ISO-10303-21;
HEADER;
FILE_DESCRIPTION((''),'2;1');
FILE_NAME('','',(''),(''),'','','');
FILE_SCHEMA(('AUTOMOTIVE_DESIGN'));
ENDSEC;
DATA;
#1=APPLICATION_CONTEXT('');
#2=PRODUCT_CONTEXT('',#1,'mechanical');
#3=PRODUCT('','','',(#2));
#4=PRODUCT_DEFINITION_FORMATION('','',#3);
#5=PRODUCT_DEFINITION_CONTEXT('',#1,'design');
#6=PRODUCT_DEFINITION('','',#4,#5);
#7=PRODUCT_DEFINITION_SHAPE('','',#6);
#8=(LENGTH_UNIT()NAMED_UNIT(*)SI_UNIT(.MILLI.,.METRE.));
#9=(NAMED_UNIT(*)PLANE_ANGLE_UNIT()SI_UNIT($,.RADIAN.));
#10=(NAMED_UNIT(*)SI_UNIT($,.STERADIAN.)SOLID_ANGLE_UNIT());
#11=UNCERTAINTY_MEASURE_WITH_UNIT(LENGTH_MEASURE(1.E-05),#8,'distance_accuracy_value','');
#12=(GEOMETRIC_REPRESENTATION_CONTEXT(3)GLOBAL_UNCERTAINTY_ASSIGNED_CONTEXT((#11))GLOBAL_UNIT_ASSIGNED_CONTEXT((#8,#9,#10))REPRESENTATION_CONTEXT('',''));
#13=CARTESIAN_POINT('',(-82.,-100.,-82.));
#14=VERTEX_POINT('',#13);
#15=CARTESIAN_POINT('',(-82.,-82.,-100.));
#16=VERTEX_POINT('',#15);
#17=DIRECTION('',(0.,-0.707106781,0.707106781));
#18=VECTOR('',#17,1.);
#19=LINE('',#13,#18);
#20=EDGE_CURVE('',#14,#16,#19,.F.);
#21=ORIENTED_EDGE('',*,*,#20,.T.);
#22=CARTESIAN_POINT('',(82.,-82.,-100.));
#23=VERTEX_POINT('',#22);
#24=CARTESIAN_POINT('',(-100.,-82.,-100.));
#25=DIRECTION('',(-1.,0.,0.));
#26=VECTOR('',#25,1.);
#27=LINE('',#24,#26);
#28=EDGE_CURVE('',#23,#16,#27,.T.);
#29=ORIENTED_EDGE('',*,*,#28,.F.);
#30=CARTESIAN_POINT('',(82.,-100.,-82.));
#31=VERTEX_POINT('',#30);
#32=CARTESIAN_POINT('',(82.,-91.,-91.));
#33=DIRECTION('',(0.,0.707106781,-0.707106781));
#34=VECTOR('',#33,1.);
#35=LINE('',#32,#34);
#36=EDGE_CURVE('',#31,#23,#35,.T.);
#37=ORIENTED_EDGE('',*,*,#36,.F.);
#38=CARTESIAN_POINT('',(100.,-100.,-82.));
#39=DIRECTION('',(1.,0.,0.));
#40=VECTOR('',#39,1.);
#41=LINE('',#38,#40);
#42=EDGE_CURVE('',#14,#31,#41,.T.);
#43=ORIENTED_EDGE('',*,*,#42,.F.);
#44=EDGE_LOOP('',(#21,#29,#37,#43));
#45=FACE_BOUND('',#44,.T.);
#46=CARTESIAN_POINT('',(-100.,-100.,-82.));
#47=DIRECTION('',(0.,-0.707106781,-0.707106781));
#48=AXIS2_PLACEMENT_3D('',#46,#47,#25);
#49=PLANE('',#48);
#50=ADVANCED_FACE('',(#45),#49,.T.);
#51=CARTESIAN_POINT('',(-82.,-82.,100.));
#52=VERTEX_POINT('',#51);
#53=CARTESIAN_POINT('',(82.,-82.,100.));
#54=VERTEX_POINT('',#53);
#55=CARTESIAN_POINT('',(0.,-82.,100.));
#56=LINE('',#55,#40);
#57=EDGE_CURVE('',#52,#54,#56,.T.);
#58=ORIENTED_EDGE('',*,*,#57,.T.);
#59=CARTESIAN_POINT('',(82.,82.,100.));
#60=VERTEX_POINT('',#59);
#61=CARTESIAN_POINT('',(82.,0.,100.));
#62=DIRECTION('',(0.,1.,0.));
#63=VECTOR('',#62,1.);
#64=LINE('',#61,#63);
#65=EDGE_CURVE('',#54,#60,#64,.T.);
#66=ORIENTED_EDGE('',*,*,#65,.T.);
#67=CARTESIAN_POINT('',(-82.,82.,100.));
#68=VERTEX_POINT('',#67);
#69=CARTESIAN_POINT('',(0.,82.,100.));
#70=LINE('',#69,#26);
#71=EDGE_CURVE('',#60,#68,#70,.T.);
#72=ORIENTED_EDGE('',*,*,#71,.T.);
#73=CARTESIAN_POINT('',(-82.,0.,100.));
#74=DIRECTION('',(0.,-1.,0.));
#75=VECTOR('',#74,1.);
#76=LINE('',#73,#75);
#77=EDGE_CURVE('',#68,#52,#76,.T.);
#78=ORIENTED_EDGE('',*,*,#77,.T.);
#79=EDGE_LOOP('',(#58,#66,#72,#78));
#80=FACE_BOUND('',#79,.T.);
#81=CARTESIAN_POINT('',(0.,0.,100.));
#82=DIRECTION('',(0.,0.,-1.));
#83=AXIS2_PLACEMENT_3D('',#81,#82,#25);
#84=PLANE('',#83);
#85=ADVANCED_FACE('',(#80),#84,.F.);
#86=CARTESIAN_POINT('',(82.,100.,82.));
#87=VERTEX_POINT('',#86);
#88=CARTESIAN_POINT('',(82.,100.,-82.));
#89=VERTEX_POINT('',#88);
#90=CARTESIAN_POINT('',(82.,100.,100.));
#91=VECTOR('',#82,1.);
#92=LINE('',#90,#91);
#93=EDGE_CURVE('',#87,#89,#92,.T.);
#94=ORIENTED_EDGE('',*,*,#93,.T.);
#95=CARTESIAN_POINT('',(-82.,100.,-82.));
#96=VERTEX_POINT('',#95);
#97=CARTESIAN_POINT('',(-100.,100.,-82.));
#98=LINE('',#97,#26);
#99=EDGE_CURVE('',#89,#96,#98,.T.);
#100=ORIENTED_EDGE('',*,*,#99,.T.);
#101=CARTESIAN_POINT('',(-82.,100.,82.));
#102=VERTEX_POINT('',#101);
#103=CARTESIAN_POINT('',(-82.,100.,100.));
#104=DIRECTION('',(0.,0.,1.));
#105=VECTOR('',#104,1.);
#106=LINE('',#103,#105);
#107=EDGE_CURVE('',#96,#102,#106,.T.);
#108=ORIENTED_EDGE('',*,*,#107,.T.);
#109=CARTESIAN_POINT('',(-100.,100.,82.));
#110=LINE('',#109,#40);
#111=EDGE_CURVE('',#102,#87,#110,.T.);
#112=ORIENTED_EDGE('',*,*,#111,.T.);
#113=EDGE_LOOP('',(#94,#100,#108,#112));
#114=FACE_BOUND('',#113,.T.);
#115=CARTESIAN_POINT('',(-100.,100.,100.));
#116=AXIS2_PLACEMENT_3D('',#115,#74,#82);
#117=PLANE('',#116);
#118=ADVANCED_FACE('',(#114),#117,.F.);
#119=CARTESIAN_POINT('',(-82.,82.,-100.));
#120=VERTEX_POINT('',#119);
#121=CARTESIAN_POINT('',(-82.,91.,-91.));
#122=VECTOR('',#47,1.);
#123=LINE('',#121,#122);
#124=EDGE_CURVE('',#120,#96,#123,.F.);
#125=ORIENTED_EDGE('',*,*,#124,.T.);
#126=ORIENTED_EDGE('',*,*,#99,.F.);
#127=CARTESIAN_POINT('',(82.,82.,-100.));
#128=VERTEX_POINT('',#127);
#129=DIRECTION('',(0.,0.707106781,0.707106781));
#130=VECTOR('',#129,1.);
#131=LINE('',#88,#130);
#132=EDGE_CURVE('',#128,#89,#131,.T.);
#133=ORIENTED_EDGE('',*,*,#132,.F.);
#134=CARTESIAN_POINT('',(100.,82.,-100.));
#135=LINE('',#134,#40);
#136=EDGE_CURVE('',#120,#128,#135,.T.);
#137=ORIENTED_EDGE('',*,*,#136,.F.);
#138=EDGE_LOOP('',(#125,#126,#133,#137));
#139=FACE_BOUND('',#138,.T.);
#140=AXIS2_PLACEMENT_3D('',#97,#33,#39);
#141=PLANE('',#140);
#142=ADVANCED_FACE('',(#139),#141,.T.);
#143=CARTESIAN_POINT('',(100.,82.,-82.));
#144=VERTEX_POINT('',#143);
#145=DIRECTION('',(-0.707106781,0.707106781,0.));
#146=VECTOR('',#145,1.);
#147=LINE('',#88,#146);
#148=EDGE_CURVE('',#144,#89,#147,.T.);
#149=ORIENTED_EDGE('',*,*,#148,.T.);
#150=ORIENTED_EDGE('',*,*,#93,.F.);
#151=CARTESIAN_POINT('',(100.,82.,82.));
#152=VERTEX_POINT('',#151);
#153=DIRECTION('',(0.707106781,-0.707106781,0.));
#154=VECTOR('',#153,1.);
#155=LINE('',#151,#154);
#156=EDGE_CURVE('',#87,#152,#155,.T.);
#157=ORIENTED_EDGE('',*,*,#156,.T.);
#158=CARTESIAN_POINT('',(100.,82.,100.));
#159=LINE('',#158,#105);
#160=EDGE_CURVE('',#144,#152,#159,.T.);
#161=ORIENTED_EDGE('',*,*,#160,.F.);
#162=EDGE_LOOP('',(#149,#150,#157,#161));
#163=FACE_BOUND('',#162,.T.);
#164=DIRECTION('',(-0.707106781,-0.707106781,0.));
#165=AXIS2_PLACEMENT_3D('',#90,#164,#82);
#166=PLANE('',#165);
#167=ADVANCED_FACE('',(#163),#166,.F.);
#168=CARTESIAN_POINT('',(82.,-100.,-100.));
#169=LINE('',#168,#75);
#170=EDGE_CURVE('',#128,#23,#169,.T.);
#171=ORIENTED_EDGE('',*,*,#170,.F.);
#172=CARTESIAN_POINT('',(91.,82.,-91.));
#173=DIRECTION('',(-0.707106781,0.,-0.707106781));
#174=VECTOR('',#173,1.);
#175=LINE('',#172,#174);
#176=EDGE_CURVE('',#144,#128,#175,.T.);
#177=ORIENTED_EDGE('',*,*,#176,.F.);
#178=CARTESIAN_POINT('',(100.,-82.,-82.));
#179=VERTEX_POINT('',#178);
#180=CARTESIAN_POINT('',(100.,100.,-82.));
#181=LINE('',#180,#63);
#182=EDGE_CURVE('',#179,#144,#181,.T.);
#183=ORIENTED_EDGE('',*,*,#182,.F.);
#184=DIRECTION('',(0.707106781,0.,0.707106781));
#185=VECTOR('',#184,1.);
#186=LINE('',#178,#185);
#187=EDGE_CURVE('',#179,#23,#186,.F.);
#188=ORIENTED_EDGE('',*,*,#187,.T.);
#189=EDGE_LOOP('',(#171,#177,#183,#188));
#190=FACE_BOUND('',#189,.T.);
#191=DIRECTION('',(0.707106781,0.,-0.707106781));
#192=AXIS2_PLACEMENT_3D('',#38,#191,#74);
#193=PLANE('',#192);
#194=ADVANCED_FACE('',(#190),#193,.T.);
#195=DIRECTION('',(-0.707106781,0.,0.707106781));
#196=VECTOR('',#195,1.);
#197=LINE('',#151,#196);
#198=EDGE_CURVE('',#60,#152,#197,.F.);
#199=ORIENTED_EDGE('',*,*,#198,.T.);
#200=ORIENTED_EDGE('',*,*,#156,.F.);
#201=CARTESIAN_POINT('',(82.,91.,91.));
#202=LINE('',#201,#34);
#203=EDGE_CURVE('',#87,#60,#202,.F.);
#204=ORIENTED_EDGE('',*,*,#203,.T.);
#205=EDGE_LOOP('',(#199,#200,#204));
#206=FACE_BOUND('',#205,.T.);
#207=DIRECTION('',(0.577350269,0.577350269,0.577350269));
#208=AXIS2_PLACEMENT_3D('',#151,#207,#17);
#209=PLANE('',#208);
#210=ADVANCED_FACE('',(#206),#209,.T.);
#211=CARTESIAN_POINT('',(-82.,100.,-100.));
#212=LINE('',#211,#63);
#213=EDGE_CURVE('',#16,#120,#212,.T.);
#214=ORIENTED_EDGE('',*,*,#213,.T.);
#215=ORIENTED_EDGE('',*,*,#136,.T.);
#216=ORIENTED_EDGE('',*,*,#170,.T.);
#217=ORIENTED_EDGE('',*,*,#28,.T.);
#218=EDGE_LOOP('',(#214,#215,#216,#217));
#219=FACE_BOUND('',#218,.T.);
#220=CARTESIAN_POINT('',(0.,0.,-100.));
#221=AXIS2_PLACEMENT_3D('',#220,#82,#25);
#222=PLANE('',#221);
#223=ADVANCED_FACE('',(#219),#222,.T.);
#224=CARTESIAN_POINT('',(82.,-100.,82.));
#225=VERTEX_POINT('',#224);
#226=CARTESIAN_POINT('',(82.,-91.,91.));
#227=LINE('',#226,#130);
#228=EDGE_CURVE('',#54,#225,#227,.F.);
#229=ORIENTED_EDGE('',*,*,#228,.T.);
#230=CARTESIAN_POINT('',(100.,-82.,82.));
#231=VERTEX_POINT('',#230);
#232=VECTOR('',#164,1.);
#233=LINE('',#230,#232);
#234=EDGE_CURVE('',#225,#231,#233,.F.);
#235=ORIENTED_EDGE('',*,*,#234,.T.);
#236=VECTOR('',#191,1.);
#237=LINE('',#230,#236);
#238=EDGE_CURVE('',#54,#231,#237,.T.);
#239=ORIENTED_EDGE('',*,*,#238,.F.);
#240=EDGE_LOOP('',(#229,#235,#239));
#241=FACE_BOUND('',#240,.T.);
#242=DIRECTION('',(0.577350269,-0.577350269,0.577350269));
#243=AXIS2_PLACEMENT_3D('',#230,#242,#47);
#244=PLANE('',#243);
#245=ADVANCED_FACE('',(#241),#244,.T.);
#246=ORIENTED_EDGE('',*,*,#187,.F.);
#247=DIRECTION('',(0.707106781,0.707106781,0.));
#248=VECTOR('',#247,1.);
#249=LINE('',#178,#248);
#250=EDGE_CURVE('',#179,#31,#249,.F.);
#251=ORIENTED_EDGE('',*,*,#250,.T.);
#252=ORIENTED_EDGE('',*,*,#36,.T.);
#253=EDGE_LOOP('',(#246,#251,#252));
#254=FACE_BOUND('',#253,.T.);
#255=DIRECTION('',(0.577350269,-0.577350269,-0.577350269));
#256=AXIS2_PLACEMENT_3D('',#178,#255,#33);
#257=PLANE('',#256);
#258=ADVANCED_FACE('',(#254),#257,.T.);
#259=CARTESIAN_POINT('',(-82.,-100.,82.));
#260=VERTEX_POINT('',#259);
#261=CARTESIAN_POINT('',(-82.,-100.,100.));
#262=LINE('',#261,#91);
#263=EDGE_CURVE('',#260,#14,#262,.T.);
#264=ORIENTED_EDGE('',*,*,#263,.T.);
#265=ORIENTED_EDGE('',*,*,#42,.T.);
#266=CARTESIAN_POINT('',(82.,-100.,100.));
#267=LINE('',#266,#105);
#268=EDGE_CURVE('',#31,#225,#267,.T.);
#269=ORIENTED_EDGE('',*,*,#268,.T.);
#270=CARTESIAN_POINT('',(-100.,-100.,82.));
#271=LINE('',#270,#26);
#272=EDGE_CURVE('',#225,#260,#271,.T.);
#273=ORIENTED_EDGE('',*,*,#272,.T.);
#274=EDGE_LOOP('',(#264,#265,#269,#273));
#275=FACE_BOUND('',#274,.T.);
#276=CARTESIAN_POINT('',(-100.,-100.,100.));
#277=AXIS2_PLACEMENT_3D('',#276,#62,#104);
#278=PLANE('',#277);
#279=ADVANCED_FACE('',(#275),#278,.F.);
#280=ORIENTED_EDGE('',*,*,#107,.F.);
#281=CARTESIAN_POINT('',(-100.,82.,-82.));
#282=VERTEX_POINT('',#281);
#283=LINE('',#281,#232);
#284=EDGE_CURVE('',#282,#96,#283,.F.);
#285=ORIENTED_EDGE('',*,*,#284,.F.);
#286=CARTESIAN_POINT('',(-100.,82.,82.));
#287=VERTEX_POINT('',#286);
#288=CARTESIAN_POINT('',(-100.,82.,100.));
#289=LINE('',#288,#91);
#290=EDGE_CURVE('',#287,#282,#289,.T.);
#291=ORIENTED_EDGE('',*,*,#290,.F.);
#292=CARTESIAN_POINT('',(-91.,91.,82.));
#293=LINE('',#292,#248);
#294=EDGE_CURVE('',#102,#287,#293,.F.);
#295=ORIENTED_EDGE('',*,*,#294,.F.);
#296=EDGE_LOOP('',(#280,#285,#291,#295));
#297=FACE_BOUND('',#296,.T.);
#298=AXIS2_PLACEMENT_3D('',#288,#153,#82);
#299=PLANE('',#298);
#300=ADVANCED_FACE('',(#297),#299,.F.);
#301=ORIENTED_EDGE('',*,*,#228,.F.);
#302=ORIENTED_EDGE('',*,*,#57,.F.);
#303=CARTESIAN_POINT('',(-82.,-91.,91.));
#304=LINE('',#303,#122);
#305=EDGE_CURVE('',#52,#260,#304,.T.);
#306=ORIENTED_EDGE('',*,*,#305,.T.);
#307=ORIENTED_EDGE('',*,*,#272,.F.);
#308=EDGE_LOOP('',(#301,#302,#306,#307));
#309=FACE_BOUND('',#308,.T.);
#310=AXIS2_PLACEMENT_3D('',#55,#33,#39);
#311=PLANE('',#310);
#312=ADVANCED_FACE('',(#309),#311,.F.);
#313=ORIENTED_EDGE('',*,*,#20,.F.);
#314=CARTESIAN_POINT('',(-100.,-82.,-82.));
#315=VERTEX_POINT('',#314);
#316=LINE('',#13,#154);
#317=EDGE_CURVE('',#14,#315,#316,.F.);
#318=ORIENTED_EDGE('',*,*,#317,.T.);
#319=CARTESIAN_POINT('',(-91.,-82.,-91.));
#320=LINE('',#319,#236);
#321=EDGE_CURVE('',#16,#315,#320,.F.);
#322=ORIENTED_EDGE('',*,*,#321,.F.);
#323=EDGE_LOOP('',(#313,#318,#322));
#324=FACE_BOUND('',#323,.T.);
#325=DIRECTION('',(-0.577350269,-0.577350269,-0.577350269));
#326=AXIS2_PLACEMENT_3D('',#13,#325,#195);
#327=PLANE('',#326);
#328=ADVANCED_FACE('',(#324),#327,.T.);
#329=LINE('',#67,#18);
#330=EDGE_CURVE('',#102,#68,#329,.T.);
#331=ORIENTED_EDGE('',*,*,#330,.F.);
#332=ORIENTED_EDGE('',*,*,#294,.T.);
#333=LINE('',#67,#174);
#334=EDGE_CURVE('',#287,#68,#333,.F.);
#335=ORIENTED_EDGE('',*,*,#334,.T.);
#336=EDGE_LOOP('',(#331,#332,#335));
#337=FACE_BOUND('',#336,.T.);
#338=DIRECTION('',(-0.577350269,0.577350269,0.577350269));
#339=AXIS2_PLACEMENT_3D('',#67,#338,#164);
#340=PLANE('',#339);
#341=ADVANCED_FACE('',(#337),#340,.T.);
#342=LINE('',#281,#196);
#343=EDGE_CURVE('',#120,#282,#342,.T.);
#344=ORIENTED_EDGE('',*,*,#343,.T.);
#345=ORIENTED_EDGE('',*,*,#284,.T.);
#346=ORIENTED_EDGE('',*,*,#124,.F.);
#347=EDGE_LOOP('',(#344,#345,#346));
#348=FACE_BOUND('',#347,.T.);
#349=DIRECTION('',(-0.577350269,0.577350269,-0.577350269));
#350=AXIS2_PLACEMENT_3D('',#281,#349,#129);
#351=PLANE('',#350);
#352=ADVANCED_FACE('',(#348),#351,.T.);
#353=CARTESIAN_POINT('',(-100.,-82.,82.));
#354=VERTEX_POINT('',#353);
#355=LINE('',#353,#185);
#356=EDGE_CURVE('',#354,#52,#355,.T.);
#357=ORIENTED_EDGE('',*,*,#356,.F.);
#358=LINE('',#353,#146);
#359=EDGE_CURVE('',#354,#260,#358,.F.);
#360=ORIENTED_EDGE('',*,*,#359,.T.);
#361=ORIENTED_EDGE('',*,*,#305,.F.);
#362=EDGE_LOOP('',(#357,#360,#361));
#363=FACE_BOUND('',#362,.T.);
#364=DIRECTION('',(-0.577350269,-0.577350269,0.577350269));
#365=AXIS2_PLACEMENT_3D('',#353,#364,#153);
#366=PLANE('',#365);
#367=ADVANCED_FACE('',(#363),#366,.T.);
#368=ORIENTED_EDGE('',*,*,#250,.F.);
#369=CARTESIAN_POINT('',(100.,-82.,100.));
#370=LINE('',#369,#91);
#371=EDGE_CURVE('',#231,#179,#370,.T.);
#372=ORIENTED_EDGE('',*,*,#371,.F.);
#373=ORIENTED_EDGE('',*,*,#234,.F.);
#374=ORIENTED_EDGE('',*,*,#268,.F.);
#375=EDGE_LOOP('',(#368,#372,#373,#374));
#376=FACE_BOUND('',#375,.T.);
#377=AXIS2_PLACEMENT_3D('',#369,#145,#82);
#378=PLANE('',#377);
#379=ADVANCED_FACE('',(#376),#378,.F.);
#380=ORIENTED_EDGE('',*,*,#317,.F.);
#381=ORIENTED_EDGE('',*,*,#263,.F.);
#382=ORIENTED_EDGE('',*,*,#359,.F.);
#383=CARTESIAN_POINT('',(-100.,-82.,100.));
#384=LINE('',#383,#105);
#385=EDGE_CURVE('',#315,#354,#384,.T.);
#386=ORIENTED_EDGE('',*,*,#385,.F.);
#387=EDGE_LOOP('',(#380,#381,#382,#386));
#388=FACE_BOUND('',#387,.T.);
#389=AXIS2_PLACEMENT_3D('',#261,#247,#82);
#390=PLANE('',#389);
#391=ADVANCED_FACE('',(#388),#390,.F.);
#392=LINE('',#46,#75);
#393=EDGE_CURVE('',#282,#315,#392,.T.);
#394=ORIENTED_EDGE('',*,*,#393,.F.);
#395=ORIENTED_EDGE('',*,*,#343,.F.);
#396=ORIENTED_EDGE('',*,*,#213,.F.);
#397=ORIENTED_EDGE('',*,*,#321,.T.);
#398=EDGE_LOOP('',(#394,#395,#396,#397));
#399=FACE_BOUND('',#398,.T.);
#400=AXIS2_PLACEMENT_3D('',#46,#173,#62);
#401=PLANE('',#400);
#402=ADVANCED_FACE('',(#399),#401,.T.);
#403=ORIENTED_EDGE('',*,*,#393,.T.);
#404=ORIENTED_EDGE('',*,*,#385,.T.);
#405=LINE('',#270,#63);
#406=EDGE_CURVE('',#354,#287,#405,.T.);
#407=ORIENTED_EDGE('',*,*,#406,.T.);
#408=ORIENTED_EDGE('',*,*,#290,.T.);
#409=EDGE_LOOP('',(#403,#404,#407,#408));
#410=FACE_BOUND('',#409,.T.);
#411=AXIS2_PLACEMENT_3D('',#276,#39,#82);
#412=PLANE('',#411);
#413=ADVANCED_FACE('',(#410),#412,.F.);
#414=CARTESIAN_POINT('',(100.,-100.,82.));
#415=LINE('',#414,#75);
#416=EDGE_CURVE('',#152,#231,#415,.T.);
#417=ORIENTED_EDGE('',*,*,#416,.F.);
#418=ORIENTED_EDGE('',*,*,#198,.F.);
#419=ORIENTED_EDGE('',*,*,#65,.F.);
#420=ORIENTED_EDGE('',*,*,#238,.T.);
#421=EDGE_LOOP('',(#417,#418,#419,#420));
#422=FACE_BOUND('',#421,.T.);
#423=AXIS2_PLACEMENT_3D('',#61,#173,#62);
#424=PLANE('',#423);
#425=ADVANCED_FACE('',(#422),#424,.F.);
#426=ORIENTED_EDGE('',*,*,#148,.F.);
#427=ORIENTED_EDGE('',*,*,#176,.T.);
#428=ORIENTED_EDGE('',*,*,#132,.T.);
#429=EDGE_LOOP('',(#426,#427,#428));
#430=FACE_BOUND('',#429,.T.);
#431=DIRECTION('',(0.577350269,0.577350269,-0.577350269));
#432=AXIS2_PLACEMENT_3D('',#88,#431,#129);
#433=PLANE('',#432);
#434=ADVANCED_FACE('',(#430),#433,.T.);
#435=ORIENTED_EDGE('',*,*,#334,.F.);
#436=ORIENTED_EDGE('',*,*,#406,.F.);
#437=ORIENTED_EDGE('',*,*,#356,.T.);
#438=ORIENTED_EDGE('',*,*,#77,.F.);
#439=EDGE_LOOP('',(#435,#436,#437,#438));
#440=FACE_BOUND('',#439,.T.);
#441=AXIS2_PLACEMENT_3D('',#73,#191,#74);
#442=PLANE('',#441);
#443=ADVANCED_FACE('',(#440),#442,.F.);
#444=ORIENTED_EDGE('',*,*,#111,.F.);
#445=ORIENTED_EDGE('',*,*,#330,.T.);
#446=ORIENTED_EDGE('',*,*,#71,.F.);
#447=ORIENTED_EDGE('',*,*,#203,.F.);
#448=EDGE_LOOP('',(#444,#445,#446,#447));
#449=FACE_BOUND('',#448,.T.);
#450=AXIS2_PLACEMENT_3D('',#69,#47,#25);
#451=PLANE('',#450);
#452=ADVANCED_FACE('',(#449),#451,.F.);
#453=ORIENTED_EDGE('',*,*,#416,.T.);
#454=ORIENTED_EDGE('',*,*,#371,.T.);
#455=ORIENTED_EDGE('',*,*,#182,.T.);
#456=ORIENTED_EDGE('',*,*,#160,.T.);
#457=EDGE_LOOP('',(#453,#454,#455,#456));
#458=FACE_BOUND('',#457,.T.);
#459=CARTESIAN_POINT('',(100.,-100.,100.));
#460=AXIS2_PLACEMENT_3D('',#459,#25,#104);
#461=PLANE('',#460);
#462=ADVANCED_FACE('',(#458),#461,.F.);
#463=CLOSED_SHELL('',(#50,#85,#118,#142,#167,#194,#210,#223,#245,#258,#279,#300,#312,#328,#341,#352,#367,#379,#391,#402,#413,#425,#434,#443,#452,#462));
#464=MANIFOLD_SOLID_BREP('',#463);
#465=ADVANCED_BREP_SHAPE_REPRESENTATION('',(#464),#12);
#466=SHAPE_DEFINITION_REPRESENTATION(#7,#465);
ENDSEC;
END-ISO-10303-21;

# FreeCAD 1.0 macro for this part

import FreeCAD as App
import Part
import Sketcher
from FreeCAD import Vector
Q = App.Units.Quantity

doc = App.newDocument("Part")
params = doc.addObject("Spreadsheet::Sheet", "Params")
for row, (alias, value) in enumerate([
    ("sketch1_width", "200 mm"),
    ("pad1_length", "200 mm"),
    ("chamfer_size", "18 mm"),
], start=1):
    params.set(f"A{row}", alias)
    params.set(f"B{row}", "=" + value)
    params.setAlias(f"B{row}", alias)

body = doc.addObject("PartDesign::Body", "Body")

# Sketch on XY plane
sketch1 = doc.addObject("Sketcher::SketchObject", "Sketch")
body.addObject(sketch1)
sketch1.AttachmentSupport = (doc.XY_Plane, [""])
sketch1.MapMode = "FlatFace"
sketch1.addGeometry([
    Part.LineSegment(Vector(-100, 100, 0), Vector(-100, -100, 0)),
    Part.LineSegment(Vector(-100, -100, 0), Vector(100, -100, 0)),
    Part.LineSegment(Vector(100, -100, 0), Vector(100, 100, 0)),
    Part.LineSegment(Vector(100, 100, 0), Vector(-100, 100, 0)),
], False)
sketch1.addConstraint([
    Sketcher.Constraint("Coincident", 0, 2, 1, 1),
    Sketcher.Constraint("Coincident", 1, 2, 2, 1),
    Sketcher.Constraint("Coincident", 2, 2, 3, 1),
    Sketcher.Constraint("Coincident", 3, 2, 0, 1),
    Sketcher.Constraint("Vertical", 0),
    Sketcher.Constraint("Horizontal", 1),
    Sketcher.Constraint("Vertical", 2),
    Sketcher.Constraint("Horizontal", 3),
    Sketcher.Constraint("Symmetric", 0, 2, 2, 2, -1, 1),
    Sketcher.Constraint("Equal", 3, 0),
    Sketcher.Constraint("DistanceX", 1, 1, 1, 2, Q("200 mm")),
])
sketch1.setExpression("Constraints[10]", "Params.sketch1_width")
pad1 = doc.addObject("PartDesign::Pad", "Pad")
body.addObject(pad1)
pad1.Profile = sketch1
pad1.setExpression("Length", "Params.pad1_length")
pad1.Midplane = True
doc.recompute()

chamfer = doc.addObject("PartDesign::Chamfer", "Chamfer")
body.addObject(chamfer)
chamfer.Base = (pad1, ["Edge1"])
chamfer.UseAllEdges = True
chamfer.setExpression("Size", "Params.chamfer_size")

doc.recompute()
